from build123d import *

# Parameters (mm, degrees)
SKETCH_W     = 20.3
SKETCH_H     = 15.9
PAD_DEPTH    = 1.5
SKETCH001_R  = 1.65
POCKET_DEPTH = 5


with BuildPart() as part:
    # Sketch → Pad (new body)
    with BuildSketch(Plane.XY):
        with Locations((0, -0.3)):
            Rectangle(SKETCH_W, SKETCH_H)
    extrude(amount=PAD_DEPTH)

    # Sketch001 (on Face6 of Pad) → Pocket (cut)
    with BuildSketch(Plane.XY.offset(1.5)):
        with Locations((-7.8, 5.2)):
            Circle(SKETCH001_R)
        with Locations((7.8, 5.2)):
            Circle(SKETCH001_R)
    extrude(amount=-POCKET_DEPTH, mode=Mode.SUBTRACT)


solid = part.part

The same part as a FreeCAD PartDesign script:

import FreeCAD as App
import Part
import Sketcher

V = App.Vector

doc = App.newDocument("Part")
body = doc.addObject("PartDesign::Body", "Body")

# Sketch on XY plane
sketch1 = body.newObject("Sketcher::SketchObject", "Sketch")
sketch1.AttachmentSupport = (doc.getObject("XY_Plane"), [""])
sketch1.MapMode = "FlatFace"
sketch1.addGeometry([
    Part.LineSegment(V(-10, 8, 0), V(-10, -8, 0)),
    Part.LineSegment(V(-10, -8, 0), V(10, -8, 0)),
    Part.LineSegment(V(10, -8, 0), V(10, 8, 0)),
    Part.LineSegment(V(10, 8, 0), V(-10, 8, 0)),
], False)
sketch1.addConstraint([
    Sketcher.Constraint("Coincident", 0, 2, 1, 1),
    Sketcher.Constraint("Coincident", 1, 2, 2, 1),
    Sketcher.Constraint("Coincident", 2, 2, 3, 1),
    Sketcher.Constraint("Coincident", 3, 2, 0, 1),
    Sketcher.Constraint("Vertical", 0),
    Sketcher.Constraint("Horizontal", 1),
    Sketcher.Constraint("Vertical", 2),
    Sketcher.Constraint("Horizontal", 3),
    Sketcher.Constraint("DistanceX", 1, 1, 1, 2, 20.3),
    Sketcher.Constraint("DistanceY", 0, 2, 0, 1, 15.9),
    Sketcher.Constraint("DistanceX", 0, 2, -1, 1, 10.15),
    Sketcher.Constraint("DistanceY", 0, 2, -1, 1, 8.25),
])
pad1 = body.newObject("PartDesign::Pad", "Pad")
pad1.Profile = sketch1
pad1.Length = 1.5

# Sketch on XY plane
sketch2 = body.newObject("Sketcher::SketchObject", "Sketch001")
sketch2.AttachmentSupport = (doc.getObject("XY_Plane"), [""])
sketch2.MapMode = "FlatFace"
sketch2.AttachmentOffset = App.Placement(V(0, 0, 1.5), App.Rotation())
sketch2.addGeometry([
    Part.Circle(V(-7.8, 5.2, 0), V(0, 0, 1), 1.6),
    Part.Circle(V(7.8, 5.2, 0), V(0, 0, 1), 1.6),
], False)
sketch2.addConstraint([
    Sketcher.Constraint("Equal", 0, 1),
    Sketcher.Constraint("Symmetric", 0, 3, 1, 3, -2),
    Sketcher.Constraint("Diameter", 0, 3.3),
    Sketcher.Constraint("DistanceX", 0, 3, -1, 1, 7.8),
    Sketcher.Constraint("DistanceY", -1, 1, 0, 3, 5.2),
])
pocket1 = body.newObject("PartDesign::Pocket", "Pocket")
pocket1.Profile = sketch2
pocket1.Length = 5

doc.recompute()
